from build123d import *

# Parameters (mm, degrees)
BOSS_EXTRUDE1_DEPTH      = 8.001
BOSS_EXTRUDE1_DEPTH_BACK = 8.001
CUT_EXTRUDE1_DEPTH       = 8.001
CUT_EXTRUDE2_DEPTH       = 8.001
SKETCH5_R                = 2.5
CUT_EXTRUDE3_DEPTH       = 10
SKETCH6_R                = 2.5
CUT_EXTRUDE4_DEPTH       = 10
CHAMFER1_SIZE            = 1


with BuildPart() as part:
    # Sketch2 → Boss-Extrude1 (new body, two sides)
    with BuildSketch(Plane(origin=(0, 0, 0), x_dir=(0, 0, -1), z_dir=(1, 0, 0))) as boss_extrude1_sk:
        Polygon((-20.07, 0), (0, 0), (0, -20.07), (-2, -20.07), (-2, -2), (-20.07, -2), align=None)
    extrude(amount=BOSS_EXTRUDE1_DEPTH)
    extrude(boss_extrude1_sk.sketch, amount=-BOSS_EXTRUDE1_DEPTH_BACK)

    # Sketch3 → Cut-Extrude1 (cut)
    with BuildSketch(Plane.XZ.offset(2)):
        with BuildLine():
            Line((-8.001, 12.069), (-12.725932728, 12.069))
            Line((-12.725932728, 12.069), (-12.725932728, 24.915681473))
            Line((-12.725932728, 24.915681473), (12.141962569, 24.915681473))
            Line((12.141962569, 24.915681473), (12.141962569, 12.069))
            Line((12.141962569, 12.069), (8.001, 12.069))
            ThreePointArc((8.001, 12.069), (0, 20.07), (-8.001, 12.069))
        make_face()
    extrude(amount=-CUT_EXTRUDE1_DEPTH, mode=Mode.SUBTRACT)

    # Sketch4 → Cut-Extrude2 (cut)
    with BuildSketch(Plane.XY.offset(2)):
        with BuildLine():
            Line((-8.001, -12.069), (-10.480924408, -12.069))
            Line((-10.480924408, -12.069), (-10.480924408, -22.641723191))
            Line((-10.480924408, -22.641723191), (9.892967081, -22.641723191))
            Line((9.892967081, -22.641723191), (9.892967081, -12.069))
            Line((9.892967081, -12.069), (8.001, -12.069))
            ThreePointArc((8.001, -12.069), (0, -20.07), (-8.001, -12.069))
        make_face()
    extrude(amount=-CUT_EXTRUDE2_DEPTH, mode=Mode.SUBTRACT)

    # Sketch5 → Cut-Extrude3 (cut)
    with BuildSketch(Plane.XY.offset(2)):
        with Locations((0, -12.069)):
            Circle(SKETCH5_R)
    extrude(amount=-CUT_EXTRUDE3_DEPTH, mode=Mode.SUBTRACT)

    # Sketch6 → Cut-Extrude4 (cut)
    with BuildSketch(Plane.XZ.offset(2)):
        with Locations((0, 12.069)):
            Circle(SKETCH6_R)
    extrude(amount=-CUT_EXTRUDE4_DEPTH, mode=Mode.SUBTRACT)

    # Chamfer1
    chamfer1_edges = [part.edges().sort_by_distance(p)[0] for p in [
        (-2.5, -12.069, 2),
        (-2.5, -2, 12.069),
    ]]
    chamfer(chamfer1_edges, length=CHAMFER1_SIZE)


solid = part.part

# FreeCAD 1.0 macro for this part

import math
import FreeCAD as App
import Part
import Sketcher
from FreeCAD import Vector


def edges_at(feature, points):
    """Names of the edges that pass closest to the given points."""
    edges = feature.Shape.Edges
    near = lambda p: min(range(len(edges)), key=lambda i: edges[i].distToShape(Part.Vertex(*p))[0])
    return sorted({f"Edge{near(p) + 1}" for p in points})


def add_polygon(sketch, points):
    """Adds a closed chain of lines whose ends are joined by coincident constraints."""
    first, n = sketch.GeometryCount, len(points)
    for a, b in zip(points, points[1:] + points[:1]):
        sketch.addGeometry(Part.LineSegment(App.Vector(*a, 0), App.Vector(*b, 0)), False)
    for i in range(n):
        sketch.addConstraint(Sketcher.Constraint("Coincident", first + i, 2, first + (i + 1) % n, 1))

doc = App.newDocument("Part")
body = doc.addObject("PartDesign::Body", "Body")

# Sketch on YZ plane
sketch1 = body.newObject("Sketcher::SketchObject", "Sketch")
sketch1.AttachmentSupport = (doc.getObject("YZ_Plane"), [""])
sketch1.MapMode = "FlatFace"
add_polygon(sketch1, [(0, 0), (0, 20.1), (-2, 20.1), (-2, 2), (-20.1, 2), (-20.1, 0)])  # lines 0-5
sketch1.addConstraint([
    Sketcher.Constraint("Vertical", 0),
    Sketcher.Constraint("Horizontal", 1),
    Sketcher.Constraint("Vertical", 2),
    Sketcher.Constraint("Horizontal", 3),
    Sketcher.Constraint("Vertical", 4),
    Sketcher.Constraint("Horizontal", 5),
    Sketcher.Constraint("Coincident", 5, 2, -1, 1),
    Sketcher.Constraint("Equal", 5, 0),
    Sketcher.Constraint("Equal", 3, 2),
    Sketcher.Constraint("DistanceX", 1, 2, 1, 1, 2.0),
    Sketcher.Constraint("DistanceX", 3, 2, 3, 1, 18.07),
])
pad1 = body.newObject("PartDesign::Pad", "Pad")
pad1.Profile = sketch1
pad1.Type = "TwoLengths"
pad1.Length = 8.001
pad1.Length2 = 8.001

# Sketch on XZ plane
sketch2 = body.newObject("Sketcher::SketchObject", "Sketch001")
sketch2.AttachmentSupport = (doc.getObject("XZ_Plane"), [""])
sketch2.MapMode = "FlatFace"
sketch2.AttachmentOffset = App.Placement(Vector(0, 0, 2), App.Rotation())
sketch2.addGeometry([
    Part.LineSegment(Vector(-12.7, 12.1, 0), Vector(-8, 12.1, 0)),  # 0
    Part.ArcOfCircle(Part.Circle(Vector(0, 12.1, 0), Vector(0, 0, 1), 8), math.radians(0), math.radians(180)),  # 1
    Part.LineSegment(Vector(8, 12.1, 0), Vector(12.1, 12.1, 0)),  # 2
    Part.LineSegment(Vector(12.1, 12.1, 0), Vector(12.1, 24.9, 0)),  # 3
    Part.LineSegment(Vector(12.1, 24.9, 0), Vector(-12.7, 24.9, 0)),  # 4
    Part.LineSegment(Vector(-12.7, 24.9, 0), Vector(-12.7, 12.1, 0)),  # 5
], False)
sketch2.addConstraint([
    Sketcher.Constraint("Coincident", 0, 2, 1, 2),
    Sketcher.Constraint("Coincident", 1, 1, 2, 1),
    Sketcher.Constraint("Coincident", 2, 2, 3, 1),
    Sketcher.Constraint("Coincident", 3, 2, 4, 1),
    Sketcher.Constraint("Coincident", 4, 2, 5, 1),
    Sketcher.Constraint("Coincident", 5, 2, 0, 1),
    Sketcher.Constraint("Horizontal", 0),
    Sketcher.Constraint("Horizontal", 2),
    Sketcher.Constraint("Vertical", 3),
    Sketcher.Constraint("Horizontal", 4),
    Sketcher.Constraint("Vertical", 5),
    Sketcher.Constraint("Symmetric", 0, 2, 1, 1, -2),
    Sketcher.Constraint("Horizontal", 1, 3, 0, 2),
    Sketcher.Constraint("Radius", 1, 8.001),
    Sketcher.Constraint("DistanceY", -1, 1, 1, 3, 12.069),
    Sketcher.Constraint("DistanceY", 3, 1, 3, 2, 12.846681),
    Sketcher.Constraint("DistanceX", 0, 1, 0, 2, 4.724933),
    Sketcher.Constraint("DistanceX", 2, 1, 2, 2, 4.140963),
])
pocket1 = body.newObject("PartDesign::Pocket", "Pocket")
pocket1.Profile = sketch2
pocket1.Length = 8.001

# Sketch on XY plane
sketch3 = body.newObject("Sketcher::SketchObject", "Sketch002")
sketch3.AttachmentSupport = (doc.getObject("XY_Plane"), [""])
sketch3.MapMode = "FlatFace"
sketch3.AttachmentOffset = App.Placement(Vector(0, 0, 2), App.Rotation())
sketch3.addGeometry([
    Part.LineSegment(Vector(-8, -12.1, 0), Vector(-10.5, -12.1, 0)),  # 0
    Part.LineSegment(Vector(-10.5, -12.1, 0), Vector(-10.5, -22.6, 0)),  # 1
    Part.LineSegment(Vector(-10.5, -22.6, 0), Vector(9.9, -22.6, 0)),  # 2
    Part.LineSegment(Vector(9.9, -22.6, 0), Vector(9.9, -12.1, 0)),  # 3
    Part.LineSegment(Vector(9.9, -12.1, 0), Vector(8, -12.1, 0)),  # 4
    Part.ArcOfCircle(Part.Circle(Vector(0, -12.1, 0), Vector(0, 0, 1), 8), math.radians(180), math.radians(360)),  # 5
], False)
sketch3.addConstraint([
    Sketcher.Constraint("Coincident", 0, 2, 1, 1),
    Sketcher.Constraint("Coincident", 1, 2, 2, 1),
    Sketcher.Constraint("Coincident", 2, 2, 3, 1),
    Sketcher.Constraint("Coincident", 3, 2, 4, 1),
    Sketcher.Constraint("Coincident", 4, 2, 5, 2),
    Sketcher.Constraint("Coincident", 5, 1, 0, 1),
    Sketcher.Constraint("Horizontal", 0),
    Sketcher.Constraint("Vertical", 1),
    Sketcher.Constraint("Horizontal", 2),
    Sketcher.Constraint("Vertical", 3),
    Sketcher.Constraint("Horizontal", 4),
    Sketcher.Constraint("Symmetric", 4, 2, 5, 1, -2),
    Sketcher.Constraint("Horizontal", 5, 3, 0, 2),
    Sketcher.Constraint("Radius", 5, 8.001),
    Sketcher.Constraint("DistanceY", 5, 3, -1, 1, 12.069),
    Sketcher.Constraint("DistanceX", 2, 1, 2, 2, 20.373891),
    Sketcher.Constraint("DistanceX", 0, 2, 0, 1, 2.479924),
    Sketcher.Constraint("DistanceY", 1, 2, 1, 1, 10.572723),
])
pocket2 = body.newObject("PartDesign::Pocket", "Pocket001")
pocket2.Profile = sketch3
pocket2.Length = 8.001

# Sketch on XY plane
sketch4 = body.newObject("Sketcher::SketchObject", "Sketch003")
sketch4.AttachmentSupport = (doc.getObject("XY_Plane"), [""])
sketch4.MapMode = "FlatFace"
sketch4.AttachmentOffset = App.Placement(Vector(0, 0, 2), App.Rotation())
sketch4.addGeometry(Part.Circle(Vector(0, -12.1, 0), Vector(0, 0, 1), 2.5), False)
sketch4.addConstraint([
    Sketcher.Constraint("PointOnObject", 0, 3, -2),
    Sketcher.Constraint("Diameter", 0, 5.0),
    Sketcher.Constraint("DistanceY", 0, 3, -1, 1, 12.069),
])
pocket3 = body.newObject("PartDesign::Pocket", "Pocket002")
pocket3.Profile = sketch4
pocket3.Length = 10

# Sketch on XZ plane
sketch5 = body.newObject("Sketcher::SketchObject", "Sketch004")
sketch5.AttachmentSupport = (doc.getObject("XZ_Plane"), [""])
sketch5.MapMode = "FlatFace"
sketch5.AttachmentOffset = App.Placement(Vector(0, 0, 2), App.Rotation())
sketch5.addGeometry(Part.Circle(Vector(0, 12.1, 0), Vector(0, 0, 1), 2.5), False)
sketch5.addConstraint([
    Sketcher.Constraint("PointOnObject", 0, 3, -2),
    Sketcher.Constraint("Diameter", 0, 5.0),
    Sketcher.Constraint("DistanceY", -1, 1, 0, 3, 12.069),
])
pocket4 = body.newObject("PartDesign::Pocket", "Pocket003")
pocket4.Profile = sketch5
pocket4.Length = 10
doc.recompute()

chamfer = body.newObject("PartDesign::Chamfer", "Chamfer")
chamfer.Base = (pocket4, edges_at(pocket4, [(-2.5, -12.069, 2), (-2.5, -2, 12.069)]))
chamfer.Size = 1

doc.recompute()
